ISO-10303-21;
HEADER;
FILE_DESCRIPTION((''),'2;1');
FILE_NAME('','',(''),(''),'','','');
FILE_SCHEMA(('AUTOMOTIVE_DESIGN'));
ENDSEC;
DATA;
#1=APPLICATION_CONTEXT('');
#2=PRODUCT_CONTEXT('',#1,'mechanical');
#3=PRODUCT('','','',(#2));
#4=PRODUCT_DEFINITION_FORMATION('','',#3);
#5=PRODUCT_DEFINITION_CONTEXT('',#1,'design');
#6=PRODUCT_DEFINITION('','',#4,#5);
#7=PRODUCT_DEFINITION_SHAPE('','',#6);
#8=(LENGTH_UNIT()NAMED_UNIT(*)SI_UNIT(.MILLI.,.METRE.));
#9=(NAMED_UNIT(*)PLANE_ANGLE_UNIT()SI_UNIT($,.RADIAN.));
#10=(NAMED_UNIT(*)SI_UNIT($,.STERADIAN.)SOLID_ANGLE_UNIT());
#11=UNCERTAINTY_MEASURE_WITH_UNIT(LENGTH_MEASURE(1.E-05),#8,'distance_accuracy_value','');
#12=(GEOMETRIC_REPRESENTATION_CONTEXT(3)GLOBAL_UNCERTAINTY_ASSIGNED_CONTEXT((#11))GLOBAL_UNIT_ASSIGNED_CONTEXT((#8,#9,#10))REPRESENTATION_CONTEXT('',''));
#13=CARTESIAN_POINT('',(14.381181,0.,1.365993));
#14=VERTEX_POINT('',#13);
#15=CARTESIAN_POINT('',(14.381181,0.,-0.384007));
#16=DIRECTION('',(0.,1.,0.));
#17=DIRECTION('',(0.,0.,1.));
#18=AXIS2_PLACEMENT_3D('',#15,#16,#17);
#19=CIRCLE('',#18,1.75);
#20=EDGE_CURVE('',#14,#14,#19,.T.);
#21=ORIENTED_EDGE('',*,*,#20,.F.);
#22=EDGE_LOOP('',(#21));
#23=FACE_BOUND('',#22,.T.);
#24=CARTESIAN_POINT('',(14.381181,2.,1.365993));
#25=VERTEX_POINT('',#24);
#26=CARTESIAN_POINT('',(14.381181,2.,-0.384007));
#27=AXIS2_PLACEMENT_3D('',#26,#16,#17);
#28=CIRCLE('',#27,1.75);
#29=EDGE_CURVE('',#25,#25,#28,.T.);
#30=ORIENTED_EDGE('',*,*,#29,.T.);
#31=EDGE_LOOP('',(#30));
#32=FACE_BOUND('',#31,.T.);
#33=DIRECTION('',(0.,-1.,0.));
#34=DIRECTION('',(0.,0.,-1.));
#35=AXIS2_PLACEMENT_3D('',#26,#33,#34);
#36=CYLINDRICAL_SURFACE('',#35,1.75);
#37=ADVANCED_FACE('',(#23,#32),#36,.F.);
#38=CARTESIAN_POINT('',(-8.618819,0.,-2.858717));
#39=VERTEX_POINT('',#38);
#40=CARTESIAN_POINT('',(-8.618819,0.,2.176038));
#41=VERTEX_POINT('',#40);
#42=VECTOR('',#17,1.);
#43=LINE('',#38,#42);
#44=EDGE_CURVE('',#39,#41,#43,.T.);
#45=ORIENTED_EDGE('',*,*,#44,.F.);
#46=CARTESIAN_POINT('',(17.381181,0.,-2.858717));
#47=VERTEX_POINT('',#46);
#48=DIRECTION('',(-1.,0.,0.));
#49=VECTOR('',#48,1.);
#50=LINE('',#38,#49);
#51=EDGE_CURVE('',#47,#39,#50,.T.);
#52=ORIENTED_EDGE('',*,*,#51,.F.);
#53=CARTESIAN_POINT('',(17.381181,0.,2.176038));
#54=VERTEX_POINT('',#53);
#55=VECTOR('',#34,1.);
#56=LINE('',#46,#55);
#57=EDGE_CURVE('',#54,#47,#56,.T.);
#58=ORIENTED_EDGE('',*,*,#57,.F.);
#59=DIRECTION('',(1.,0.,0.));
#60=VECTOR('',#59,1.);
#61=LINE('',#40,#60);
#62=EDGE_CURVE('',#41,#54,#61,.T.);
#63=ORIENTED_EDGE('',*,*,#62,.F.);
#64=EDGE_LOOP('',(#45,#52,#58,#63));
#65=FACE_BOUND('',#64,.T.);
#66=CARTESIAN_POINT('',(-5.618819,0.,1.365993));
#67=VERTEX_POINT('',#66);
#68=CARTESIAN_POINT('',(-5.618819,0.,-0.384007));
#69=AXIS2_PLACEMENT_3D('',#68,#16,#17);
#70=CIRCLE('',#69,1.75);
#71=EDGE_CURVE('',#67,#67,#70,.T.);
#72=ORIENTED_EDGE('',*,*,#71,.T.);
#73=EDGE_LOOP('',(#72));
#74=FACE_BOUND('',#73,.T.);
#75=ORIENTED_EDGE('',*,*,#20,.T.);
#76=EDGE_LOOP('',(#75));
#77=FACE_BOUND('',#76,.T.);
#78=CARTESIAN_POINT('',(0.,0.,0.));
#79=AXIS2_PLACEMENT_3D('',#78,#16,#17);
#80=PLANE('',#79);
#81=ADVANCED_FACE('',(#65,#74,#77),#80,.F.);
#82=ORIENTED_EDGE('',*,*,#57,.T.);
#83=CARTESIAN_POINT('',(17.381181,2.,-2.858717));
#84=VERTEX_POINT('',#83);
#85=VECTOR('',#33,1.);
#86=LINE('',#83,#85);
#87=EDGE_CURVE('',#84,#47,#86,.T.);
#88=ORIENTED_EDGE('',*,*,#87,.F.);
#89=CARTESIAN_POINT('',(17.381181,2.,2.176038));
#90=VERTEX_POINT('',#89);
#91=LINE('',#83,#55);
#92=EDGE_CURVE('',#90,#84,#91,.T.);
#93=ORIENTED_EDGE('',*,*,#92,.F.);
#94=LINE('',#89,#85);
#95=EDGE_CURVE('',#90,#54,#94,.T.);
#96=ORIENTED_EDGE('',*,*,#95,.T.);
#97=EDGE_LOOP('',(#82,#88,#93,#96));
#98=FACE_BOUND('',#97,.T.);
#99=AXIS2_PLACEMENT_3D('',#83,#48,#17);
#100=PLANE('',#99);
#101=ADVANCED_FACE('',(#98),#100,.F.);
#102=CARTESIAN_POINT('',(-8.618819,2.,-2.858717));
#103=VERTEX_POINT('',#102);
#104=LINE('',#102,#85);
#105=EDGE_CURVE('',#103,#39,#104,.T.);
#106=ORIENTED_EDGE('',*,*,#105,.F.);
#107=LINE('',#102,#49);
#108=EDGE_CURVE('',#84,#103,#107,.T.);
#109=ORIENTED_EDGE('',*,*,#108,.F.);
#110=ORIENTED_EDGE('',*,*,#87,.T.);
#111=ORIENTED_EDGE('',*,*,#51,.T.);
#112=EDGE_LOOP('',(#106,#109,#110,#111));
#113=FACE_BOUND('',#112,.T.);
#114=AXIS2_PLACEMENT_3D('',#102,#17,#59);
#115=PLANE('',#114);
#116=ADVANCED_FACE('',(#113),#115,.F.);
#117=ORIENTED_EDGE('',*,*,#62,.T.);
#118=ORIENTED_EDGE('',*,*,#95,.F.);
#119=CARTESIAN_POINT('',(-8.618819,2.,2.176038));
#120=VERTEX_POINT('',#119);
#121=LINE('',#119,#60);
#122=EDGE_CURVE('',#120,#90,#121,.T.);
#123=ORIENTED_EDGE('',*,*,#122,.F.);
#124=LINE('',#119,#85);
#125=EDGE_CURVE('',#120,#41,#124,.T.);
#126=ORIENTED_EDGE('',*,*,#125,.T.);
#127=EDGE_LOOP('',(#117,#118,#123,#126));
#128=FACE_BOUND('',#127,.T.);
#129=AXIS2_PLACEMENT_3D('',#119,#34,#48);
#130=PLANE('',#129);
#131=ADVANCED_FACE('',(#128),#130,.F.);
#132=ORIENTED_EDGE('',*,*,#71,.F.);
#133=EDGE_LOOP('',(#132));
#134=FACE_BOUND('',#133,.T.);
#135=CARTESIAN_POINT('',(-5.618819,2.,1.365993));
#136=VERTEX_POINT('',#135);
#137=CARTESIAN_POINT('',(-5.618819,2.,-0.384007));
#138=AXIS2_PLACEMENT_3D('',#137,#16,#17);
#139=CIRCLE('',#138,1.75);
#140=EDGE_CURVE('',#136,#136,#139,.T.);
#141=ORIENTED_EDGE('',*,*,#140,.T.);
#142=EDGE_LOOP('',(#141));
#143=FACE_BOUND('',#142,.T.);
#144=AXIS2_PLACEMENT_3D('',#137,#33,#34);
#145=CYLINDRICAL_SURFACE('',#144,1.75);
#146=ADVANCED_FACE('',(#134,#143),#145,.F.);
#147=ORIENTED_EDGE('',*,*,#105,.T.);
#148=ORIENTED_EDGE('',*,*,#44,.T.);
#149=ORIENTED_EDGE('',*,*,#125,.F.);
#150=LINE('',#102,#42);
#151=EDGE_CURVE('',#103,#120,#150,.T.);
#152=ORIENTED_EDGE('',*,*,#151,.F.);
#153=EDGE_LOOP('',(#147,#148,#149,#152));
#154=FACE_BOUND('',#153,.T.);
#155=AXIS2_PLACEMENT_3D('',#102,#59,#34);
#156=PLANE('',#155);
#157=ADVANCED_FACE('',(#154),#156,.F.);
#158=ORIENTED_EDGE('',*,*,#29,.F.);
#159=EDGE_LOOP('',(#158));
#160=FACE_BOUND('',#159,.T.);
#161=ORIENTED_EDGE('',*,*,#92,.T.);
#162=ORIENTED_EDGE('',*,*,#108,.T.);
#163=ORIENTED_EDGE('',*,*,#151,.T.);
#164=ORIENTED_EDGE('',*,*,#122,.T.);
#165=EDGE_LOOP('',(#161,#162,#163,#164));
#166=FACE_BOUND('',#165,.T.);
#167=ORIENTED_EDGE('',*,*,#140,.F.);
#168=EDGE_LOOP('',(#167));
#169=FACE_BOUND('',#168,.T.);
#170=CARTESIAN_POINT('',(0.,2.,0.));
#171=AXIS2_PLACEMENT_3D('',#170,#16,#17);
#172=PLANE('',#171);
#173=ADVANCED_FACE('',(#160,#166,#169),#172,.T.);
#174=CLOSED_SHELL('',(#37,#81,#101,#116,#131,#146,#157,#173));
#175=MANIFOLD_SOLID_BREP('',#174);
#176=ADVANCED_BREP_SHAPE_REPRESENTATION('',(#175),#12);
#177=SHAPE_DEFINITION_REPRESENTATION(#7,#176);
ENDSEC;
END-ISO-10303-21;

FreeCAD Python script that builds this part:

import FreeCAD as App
import Part
import Sketcher
from FreeCAD import Vector
Q = App.Units.Quantity

doc = App.newDocument("Part")
body = doc.addObject("PartDesign::Body", "Body")

# Sketch on XZ plane
sketch1 = body.newObject("Sketcher::SketchObject", "Sketch")
sketch1.AttachmentSupport = (doc.getObject("XZ_Plane"), [""])
sketch1.MapMode = "FlatFace"
sketch1.addGeometry([
    Part.LineSegment(Vector(-8.6, -2.9, 0), Vector(-8.6, 2.2, 0)),  # 0
    Part.LineSegment(Vector(-8.6, 2.2, 0), Vector(17.4, 2.2, 0)),  # 1
    Part.LineSegment(Vector(17.4, 2.2, 0), Vector(17.4, -2.9, 0)),  # 2
    Part.LineSegment(Vector(17.4, -2.9, 0), Vector(-8.6, -2.9, 0)),  # 3
    Part.Circle(Vector(-5.6, -0.4, 0), Vector(0, 0, 1), 1.8),  # 4
    Part.Circle(Vector(14.4, -0.4, 0), Vector(0, 0, 1), 1.8),  # 5
], False)
sketch1.addConstraint([
    Sketcher.Constraint("Coincident", 0, 2, 1, 1),
    Sketcher.Constraint("Coincident", 1, 2, 2, 1),
    Sketcher.Constraint("Coincident", 2, 2, 3, 1),
    Sketcher.Constraint("Coincident", 3, 2, 0, 1),
    Sketcher.Constraint("Vertical", 0),
    Sketcher.Constraint("Horizontal", 1),
    Sketcher.Constraint("Vertical", 2),
    Sketcher.Constraint("Horizontal", 3),
    Sketcher.Constraint("Equal", 4, 5),
    Sketcher.Constraint("Horizontal", 4, 3, 5, 3),
    Sketcher.Constraint("Diameter", 4, Q("3.5 mm")),
    Sketcher.Constraint("DistanceX", 1, 1, 1, 2, Q("26 mm")),
    Sketcher.Constraint("DistanceX", 4, 3, 5, 3, Q("20 mm")),
    Sketcher.Constraint("DistanceX", 0, 2, 4, 3, Q("3 mm")),
    Sketcher.Constraint("DistanceY", 0, 1, 0, 2, Q("5.034755 mm")),
    Sketcher.Constraint("DistanceX", 4, 3, -1, 1, Q("5.618819 mm")),
    Sketcher.Constraint("DistanceY", -1, 1, 0, 2, Q("2.176038 mm")),
    Sketcher.Constraint("DistanceY", 2, 2, 5, 3, Q("2.47471 mm")),
])
pad1 = body.newObject("PartDesign::Pad", "Pad")
pad1.Profile = sketch1
pad1.Length = 2
pad1.Reversed = True

doc.recompute()
